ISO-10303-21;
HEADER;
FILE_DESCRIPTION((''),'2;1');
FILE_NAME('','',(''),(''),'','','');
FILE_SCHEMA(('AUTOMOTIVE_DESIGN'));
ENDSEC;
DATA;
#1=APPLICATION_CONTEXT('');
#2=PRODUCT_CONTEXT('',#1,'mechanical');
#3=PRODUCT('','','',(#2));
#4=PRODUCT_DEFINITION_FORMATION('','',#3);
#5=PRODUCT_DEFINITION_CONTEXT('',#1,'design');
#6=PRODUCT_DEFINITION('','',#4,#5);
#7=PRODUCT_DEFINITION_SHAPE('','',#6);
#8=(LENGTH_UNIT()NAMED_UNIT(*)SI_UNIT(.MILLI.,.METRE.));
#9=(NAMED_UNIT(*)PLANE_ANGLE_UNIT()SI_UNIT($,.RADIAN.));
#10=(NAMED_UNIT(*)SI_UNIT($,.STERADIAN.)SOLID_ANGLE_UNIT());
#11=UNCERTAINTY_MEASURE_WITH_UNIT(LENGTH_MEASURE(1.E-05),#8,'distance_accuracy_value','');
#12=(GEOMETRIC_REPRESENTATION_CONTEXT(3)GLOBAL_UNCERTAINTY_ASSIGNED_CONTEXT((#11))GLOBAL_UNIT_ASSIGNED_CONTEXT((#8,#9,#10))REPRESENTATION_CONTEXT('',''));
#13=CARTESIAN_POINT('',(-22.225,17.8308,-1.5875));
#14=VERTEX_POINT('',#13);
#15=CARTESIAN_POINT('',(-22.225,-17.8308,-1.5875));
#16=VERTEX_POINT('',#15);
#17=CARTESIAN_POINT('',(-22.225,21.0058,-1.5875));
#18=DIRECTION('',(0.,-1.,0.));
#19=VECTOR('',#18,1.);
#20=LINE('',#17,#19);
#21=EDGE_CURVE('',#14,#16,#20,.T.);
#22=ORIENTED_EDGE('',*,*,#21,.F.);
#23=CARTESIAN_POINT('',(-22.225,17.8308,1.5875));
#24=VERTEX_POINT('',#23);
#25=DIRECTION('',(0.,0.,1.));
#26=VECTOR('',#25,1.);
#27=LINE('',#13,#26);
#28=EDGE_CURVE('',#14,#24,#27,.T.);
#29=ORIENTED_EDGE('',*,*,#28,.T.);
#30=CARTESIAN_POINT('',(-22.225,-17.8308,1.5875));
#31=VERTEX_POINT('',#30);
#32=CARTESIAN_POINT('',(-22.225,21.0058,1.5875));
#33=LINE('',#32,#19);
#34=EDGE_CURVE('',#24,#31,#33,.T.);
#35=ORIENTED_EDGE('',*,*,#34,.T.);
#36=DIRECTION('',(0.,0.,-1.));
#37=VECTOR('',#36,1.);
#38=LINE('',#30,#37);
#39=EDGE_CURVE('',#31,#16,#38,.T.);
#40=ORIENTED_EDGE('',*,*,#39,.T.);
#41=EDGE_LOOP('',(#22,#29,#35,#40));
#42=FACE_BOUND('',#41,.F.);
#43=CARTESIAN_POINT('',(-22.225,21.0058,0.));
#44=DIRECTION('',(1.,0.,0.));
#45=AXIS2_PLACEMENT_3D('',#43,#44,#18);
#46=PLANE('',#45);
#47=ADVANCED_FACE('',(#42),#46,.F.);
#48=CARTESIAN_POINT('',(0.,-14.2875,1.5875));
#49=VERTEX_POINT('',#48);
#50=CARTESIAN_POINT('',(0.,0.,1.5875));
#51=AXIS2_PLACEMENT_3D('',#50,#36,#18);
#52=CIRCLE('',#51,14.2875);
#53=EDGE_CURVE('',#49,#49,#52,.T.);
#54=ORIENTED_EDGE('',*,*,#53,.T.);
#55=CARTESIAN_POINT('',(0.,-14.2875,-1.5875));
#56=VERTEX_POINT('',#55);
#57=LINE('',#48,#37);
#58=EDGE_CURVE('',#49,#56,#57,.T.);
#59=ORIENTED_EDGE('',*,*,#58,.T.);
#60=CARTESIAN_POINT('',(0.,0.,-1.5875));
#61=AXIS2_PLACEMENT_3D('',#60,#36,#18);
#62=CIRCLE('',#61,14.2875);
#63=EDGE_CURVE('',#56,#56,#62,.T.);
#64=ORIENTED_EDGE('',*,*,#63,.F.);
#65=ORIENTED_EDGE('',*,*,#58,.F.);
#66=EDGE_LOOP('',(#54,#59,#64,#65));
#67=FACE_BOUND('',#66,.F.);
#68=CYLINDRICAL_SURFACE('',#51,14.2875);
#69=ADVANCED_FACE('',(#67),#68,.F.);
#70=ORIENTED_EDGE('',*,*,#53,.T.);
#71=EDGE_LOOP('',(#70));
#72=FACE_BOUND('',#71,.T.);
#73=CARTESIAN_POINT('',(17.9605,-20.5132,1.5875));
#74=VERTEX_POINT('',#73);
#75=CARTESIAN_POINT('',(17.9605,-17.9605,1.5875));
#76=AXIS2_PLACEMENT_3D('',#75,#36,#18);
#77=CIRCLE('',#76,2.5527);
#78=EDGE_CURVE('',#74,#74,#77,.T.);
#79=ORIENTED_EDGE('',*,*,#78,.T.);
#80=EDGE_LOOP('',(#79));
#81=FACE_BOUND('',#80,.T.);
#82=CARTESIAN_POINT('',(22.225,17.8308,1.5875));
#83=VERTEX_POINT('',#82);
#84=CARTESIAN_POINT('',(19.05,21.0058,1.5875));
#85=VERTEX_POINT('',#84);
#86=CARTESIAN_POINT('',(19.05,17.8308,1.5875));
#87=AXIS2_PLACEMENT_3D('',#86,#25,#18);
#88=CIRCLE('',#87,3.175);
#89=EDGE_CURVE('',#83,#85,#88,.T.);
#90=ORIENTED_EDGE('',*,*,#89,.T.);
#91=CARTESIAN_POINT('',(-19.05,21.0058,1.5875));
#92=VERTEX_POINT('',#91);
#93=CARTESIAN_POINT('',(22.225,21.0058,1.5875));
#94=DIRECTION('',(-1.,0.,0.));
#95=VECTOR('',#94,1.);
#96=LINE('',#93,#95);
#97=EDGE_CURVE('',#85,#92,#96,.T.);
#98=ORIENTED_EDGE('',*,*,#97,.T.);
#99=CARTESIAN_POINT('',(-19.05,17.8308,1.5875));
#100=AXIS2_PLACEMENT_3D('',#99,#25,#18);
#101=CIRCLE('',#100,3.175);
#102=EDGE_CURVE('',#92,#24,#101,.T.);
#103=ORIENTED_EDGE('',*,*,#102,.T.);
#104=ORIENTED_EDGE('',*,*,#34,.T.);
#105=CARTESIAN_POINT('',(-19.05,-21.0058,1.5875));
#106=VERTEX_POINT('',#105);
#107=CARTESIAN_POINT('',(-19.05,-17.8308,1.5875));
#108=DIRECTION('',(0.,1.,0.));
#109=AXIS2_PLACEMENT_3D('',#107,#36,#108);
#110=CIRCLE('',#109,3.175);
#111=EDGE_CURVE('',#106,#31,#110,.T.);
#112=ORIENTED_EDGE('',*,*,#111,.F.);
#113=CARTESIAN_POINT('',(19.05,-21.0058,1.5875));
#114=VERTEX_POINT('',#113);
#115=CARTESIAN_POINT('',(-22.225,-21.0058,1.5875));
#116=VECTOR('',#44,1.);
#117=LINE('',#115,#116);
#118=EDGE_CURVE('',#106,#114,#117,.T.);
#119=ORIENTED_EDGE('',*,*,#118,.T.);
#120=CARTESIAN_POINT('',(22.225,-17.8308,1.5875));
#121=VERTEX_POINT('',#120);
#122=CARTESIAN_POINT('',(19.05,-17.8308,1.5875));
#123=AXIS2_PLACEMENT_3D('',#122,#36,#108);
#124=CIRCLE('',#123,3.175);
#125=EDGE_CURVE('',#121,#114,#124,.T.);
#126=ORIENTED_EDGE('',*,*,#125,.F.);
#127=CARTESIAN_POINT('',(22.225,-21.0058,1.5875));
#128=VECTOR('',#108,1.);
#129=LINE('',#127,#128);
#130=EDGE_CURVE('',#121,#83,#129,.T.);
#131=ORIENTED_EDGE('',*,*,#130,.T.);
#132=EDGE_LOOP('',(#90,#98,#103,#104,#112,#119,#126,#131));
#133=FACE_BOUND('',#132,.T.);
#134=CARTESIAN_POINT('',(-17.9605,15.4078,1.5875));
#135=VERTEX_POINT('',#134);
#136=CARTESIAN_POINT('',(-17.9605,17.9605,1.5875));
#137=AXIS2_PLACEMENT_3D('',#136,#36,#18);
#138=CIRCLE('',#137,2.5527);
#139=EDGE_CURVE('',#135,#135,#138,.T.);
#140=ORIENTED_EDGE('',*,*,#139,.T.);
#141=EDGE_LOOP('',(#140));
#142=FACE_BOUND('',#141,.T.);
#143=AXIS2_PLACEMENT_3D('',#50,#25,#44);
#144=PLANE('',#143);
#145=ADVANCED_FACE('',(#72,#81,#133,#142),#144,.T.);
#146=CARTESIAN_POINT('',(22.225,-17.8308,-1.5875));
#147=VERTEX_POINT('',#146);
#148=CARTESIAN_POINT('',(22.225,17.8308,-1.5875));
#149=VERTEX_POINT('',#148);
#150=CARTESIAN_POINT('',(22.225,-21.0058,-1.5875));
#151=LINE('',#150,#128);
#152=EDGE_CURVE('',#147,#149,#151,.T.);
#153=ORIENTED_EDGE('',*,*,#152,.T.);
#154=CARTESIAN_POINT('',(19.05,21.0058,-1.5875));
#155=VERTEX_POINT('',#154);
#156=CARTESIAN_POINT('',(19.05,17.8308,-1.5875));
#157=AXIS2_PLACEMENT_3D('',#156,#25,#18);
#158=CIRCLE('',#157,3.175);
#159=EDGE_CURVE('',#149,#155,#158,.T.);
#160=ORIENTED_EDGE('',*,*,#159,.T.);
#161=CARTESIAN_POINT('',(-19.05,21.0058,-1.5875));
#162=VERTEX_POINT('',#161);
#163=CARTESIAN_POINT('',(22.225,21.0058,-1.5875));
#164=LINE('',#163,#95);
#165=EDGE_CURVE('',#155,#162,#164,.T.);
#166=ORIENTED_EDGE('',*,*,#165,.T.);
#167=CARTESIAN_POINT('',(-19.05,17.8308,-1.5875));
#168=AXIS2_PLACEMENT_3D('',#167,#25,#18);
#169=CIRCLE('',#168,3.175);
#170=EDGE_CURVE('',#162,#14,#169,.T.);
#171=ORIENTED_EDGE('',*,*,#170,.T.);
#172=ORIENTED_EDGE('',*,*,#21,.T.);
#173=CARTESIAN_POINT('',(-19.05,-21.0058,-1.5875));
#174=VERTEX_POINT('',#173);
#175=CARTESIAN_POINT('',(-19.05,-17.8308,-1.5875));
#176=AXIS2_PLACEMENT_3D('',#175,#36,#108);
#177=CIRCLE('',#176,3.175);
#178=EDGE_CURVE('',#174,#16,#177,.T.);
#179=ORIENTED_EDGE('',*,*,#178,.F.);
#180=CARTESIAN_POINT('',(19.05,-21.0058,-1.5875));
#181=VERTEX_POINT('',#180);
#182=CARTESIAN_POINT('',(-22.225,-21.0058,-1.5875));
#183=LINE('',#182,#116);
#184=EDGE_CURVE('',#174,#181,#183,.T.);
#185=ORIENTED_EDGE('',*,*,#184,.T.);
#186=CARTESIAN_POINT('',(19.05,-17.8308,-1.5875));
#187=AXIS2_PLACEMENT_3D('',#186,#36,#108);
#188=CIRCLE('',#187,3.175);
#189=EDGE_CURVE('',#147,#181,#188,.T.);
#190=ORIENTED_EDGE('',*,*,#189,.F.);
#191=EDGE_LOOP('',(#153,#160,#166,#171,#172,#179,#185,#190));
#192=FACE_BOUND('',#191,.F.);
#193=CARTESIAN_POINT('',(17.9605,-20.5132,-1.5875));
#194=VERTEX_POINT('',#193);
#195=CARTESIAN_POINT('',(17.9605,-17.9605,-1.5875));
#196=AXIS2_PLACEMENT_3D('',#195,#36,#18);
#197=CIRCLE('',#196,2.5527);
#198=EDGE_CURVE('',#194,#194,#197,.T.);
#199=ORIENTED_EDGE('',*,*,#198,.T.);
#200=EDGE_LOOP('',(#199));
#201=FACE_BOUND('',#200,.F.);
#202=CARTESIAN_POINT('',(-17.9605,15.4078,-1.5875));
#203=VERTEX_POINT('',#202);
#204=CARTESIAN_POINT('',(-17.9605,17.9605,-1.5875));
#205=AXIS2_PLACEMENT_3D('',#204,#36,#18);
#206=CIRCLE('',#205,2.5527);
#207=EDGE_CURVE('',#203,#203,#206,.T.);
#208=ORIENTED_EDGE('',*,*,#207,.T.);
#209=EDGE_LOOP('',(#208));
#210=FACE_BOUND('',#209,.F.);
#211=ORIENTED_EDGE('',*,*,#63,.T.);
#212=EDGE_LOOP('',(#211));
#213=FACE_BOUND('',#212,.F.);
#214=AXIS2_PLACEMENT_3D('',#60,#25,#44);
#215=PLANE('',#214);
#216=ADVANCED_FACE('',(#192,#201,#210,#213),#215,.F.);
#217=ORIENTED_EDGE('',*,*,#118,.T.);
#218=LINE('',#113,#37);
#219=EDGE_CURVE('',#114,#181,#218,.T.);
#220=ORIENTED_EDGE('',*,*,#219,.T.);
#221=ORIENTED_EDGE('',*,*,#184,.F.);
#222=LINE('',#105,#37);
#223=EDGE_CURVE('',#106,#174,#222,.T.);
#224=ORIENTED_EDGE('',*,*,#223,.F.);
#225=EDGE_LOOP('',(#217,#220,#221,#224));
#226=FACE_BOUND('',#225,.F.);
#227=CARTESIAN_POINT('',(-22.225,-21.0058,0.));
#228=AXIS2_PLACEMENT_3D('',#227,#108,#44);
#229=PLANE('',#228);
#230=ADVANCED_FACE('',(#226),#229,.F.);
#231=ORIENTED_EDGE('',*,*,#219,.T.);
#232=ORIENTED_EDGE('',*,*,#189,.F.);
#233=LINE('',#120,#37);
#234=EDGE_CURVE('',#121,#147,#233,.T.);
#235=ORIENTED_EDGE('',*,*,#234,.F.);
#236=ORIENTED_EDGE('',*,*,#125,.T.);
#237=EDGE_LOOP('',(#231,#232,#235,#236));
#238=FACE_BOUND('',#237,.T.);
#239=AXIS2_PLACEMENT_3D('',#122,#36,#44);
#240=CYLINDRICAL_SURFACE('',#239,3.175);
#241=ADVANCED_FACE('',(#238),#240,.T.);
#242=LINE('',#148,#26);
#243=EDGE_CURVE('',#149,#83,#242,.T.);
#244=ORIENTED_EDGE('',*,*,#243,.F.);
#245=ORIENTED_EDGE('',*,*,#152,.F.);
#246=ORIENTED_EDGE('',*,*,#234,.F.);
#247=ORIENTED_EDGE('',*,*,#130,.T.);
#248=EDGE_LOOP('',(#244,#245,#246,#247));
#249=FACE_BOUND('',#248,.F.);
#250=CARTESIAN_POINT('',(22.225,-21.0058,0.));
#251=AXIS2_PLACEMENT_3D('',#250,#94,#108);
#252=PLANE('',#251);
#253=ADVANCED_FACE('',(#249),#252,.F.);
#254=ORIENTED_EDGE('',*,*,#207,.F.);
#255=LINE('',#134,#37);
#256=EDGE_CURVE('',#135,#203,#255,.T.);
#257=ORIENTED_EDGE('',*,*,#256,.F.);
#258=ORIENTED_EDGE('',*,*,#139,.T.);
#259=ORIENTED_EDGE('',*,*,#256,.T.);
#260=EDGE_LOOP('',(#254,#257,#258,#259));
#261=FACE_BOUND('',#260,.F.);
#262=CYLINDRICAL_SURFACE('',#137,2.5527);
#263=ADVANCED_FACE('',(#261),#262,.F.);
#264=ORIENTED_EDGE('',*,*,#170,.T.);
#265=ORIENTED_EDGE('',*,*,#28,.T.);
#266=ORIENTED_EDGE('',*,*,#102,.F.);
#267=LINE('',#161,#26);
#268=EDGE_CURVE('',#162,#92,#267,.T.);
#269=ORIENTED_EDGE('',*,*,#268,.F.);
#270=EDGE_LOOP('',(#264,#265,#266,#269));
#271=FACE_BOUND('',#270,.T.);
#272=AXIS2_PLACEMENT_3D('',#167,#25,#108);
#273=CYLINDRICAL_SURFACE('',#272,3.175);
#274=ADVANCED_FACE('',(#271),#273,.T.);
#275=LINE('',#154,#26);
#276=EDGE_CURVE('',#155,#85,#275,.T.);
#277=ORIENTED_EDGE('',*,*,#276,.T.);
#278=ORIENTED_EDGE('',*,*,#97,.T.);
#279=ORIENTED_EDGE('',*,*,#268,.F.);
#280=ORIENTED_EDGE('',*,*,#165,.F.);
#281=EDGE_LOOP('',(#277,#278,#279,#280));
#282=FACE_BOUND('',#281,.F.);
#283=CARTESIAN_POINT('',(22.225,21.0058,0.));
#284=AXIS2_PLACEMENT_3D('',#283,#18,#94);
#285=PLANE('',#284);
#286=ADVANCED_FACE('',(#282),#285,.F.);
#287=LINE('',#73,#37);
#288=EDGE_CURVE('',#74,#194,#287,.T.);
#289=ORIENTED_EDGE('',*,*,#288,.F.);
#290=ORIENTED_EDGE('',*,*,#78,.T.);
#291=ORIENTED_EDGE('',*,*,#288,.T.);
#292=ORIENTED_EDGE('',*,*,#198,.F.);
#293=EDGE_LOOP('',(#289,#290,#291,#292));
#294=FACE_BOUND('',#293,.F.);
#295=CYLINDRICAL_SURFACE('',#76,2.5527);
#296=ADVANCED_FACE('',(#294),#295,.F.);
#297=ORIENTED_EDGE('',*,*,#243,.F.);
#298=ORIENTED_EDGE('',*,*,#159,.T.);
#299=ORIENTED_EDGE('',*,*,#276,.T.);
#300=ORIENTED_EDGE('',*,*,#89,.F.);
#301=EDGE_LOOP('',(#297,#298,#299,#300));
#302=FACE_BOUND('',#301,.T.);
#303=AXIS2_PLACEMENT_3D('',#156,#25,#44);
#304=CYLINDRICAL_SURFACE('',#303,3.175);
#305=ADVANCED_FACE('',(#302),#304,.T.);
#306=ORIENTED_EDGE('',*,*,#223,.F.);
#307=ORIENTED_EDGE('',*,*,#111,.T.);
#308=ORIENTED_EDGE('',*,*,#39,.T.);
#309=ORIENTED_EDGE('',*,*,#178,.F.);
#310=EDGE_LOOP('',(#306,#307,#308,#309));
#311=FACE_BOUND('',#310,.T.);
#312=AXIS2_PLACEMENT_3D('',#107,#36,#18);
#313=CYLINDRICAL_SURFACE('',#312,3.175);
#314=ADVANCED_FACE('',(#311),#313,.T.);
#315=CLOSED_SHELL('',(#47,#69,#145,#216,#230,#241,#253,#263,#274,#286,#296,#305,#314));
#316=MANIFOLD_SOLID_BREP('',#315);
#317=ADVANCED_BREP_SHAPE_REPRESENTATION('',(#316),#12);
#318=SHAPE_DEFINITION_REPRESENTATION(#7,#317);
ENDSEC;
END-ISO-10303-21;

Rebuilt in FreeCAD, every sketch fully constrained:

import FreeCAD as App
import Part
import Sketcher

V = App.Vector
Q = App.Units.Quantity


def edges_at(feature, points):
    """Names of the edges that pass closest to the given points."""
    edges = feature.Shape.Edges
    near = lambda p: min(range(len(edges)), key=lambda i: edges[i].distToShape(Part.Vertex(*p))[0])
    return sorted({f"Edge{near(p) + 1}" for p in points})


def add_polygon(sketch, points):
    """Adds a closed chain of lines whose ends are joined by coincident constraints."""
    first, n = sketch.GeometryCount, len(points)
    for a, b in zip(points, points[1:] + points[:1]):
        sketch.addGeometry(Part.LineSegment(App.Vector(*a, 0), App.Vector(*b, 0)), False)
    for i in range(n):
        sketch.addConstraint(Sketcher.Constraint("Coincident", first + i, 2, first + (i + 1) % n, 1))

doc = App.newDocument("Part")
body = doc.addObject("PartDesign::Body", "Body")

sketch1 = doc.addObject("Sketcher::SketchObject", "Sketch")
body.addObject(sketch1)
sketch1.AttachmentSupport = (doc.XY_Plane, [""])
sketch1.MapMode = "FlatFace"
add_polygon(sketch1, [(22.225, -21.0058), (22.225, 21.0058), (-22.225, 21.0058), (-22.225, -21.0058)])
sketch1.addConstraint(Sketcher.Constraint("Vertical", 0))
sketch1.addConstraint(Sketcher.Constraint("Horizontal", 1))
sketch1.addConstraint(Sketcher.Constraint("Vertical", 2))
sketch1.addConstraint(Sketcher.Constraint("Horizontal", 3))
sketch1.addConstraint(Sketcher.Constraint("Symmetric", 0, 2, 2, 2, -1, 1))
sketch1.addConstraint(Sketcher.Constraint("DistanceX", 1, 2, 1, 1, Q("1.75 in")))
sketch1.addConstraint(Sketcher.Constraint("DistanceY", 0, 1, 0, 2, Q("1.654 in")))
pad1 = doc.addObject("PartDesign::Pad", "Pad")
body.addObject(pad1)
pad1.Profile = sketch1
pad1.Length = Q("0.125 in")
pad1.Midplane = True

sketch2 = doc.addObject("Sketcher::SketchObject", "Sketch001")
body.addObject(sketch2)
sketch2.AttachmentSupport = (doc.XY_Plane, [""])
sketch2.MapMode = "FlatFace"
sketch2.AttachmentOffset = App.Placement(V(0, 0, 0.0625 * 25.4), App.Rotation())
sketch2.addGeometry(Part.Circle(V(0, 0, 0), V(0, 0, 1), 14.2875), False)
sketch2.addConstraint(Sketcher.Constraint("Coincident", 0, 3, -1, 1))
sketch2.addConstraint(Sketcher.Constraint("Diameter", 0, Q("1.125 in")))
doc.recompute()
hole = doc.addObject("PartDesign::Hole", "Hole")
body.addObject(hole)
hole.Profile = sketch2
hole.ThreadType = "None"
hole.Diameter = Q("1.125 in")
hole.DepthType = "ThroughAll"

sketch3 = doc.addObject("Sketcher::SketchObject", "Sketch002")
body.addObject(sketch3)
sketch3.AttachmentSupport = (doc.XY_Plane, [""])
sketch3.MapMode = "FlatFace"
sketch3.AttachmentOffset = App.Placement(V(0, 0, 0.0625 * 25.4), App.Rotation())
sketch3.addGeometry(Part.Circle(V(17.9605, -17.9605, 0), V(0, 0, 1), 2.5527), False)
sketch3.addGeometry(Part.Circle(V(-17.9605, 17.9605, 0), V(0, 0, 1), 2.5527), False)
sketch3.addConstraint(Sketcher.Constraint("Equal", 0, 1))
sketch3.addConstraint(Sketcher.Constraint("Symmetric", 0, 3, 1, 3, -1, 1))
sketch3.addConstraint(Sketcher.Constraint("Diameter", 0, Q("0.201 in")))
sketch3.addConstraint(Sketcher.Constraint("DistanceX", -1, 1, 0, 3, Q("0.7071 in")))
sketch3.addConstraint(Sketcher.Constraint("DistanceY", 0, 3, -1, 1, Q("0.7071 in")))
doc.recompute()
hole2 = doc.addObject("PartDesign::Hole", "Hole001")
body.addObject(hole2)
hole2.Profile = sketch3
hole2.ThreadType = "None"
hole2.Diameter = Q("0.201 in")
hole2.DepthType = "ThroughAll"
doc.recompute()

fillet = doc.addObject("PartDesign::Fillet", "Fillet")
body.addObject(fillet)
fillet.Base = (hole2, edges_at(hole2, [
    (22.225, -21.006, 0),
    (-22.225, 21.006, 0),
    (22.225, 21.006, 0),
    (-22.225, -21.006, 0),
]))
fillet.Radius = Q("0.125 in")

doc.recompute()
